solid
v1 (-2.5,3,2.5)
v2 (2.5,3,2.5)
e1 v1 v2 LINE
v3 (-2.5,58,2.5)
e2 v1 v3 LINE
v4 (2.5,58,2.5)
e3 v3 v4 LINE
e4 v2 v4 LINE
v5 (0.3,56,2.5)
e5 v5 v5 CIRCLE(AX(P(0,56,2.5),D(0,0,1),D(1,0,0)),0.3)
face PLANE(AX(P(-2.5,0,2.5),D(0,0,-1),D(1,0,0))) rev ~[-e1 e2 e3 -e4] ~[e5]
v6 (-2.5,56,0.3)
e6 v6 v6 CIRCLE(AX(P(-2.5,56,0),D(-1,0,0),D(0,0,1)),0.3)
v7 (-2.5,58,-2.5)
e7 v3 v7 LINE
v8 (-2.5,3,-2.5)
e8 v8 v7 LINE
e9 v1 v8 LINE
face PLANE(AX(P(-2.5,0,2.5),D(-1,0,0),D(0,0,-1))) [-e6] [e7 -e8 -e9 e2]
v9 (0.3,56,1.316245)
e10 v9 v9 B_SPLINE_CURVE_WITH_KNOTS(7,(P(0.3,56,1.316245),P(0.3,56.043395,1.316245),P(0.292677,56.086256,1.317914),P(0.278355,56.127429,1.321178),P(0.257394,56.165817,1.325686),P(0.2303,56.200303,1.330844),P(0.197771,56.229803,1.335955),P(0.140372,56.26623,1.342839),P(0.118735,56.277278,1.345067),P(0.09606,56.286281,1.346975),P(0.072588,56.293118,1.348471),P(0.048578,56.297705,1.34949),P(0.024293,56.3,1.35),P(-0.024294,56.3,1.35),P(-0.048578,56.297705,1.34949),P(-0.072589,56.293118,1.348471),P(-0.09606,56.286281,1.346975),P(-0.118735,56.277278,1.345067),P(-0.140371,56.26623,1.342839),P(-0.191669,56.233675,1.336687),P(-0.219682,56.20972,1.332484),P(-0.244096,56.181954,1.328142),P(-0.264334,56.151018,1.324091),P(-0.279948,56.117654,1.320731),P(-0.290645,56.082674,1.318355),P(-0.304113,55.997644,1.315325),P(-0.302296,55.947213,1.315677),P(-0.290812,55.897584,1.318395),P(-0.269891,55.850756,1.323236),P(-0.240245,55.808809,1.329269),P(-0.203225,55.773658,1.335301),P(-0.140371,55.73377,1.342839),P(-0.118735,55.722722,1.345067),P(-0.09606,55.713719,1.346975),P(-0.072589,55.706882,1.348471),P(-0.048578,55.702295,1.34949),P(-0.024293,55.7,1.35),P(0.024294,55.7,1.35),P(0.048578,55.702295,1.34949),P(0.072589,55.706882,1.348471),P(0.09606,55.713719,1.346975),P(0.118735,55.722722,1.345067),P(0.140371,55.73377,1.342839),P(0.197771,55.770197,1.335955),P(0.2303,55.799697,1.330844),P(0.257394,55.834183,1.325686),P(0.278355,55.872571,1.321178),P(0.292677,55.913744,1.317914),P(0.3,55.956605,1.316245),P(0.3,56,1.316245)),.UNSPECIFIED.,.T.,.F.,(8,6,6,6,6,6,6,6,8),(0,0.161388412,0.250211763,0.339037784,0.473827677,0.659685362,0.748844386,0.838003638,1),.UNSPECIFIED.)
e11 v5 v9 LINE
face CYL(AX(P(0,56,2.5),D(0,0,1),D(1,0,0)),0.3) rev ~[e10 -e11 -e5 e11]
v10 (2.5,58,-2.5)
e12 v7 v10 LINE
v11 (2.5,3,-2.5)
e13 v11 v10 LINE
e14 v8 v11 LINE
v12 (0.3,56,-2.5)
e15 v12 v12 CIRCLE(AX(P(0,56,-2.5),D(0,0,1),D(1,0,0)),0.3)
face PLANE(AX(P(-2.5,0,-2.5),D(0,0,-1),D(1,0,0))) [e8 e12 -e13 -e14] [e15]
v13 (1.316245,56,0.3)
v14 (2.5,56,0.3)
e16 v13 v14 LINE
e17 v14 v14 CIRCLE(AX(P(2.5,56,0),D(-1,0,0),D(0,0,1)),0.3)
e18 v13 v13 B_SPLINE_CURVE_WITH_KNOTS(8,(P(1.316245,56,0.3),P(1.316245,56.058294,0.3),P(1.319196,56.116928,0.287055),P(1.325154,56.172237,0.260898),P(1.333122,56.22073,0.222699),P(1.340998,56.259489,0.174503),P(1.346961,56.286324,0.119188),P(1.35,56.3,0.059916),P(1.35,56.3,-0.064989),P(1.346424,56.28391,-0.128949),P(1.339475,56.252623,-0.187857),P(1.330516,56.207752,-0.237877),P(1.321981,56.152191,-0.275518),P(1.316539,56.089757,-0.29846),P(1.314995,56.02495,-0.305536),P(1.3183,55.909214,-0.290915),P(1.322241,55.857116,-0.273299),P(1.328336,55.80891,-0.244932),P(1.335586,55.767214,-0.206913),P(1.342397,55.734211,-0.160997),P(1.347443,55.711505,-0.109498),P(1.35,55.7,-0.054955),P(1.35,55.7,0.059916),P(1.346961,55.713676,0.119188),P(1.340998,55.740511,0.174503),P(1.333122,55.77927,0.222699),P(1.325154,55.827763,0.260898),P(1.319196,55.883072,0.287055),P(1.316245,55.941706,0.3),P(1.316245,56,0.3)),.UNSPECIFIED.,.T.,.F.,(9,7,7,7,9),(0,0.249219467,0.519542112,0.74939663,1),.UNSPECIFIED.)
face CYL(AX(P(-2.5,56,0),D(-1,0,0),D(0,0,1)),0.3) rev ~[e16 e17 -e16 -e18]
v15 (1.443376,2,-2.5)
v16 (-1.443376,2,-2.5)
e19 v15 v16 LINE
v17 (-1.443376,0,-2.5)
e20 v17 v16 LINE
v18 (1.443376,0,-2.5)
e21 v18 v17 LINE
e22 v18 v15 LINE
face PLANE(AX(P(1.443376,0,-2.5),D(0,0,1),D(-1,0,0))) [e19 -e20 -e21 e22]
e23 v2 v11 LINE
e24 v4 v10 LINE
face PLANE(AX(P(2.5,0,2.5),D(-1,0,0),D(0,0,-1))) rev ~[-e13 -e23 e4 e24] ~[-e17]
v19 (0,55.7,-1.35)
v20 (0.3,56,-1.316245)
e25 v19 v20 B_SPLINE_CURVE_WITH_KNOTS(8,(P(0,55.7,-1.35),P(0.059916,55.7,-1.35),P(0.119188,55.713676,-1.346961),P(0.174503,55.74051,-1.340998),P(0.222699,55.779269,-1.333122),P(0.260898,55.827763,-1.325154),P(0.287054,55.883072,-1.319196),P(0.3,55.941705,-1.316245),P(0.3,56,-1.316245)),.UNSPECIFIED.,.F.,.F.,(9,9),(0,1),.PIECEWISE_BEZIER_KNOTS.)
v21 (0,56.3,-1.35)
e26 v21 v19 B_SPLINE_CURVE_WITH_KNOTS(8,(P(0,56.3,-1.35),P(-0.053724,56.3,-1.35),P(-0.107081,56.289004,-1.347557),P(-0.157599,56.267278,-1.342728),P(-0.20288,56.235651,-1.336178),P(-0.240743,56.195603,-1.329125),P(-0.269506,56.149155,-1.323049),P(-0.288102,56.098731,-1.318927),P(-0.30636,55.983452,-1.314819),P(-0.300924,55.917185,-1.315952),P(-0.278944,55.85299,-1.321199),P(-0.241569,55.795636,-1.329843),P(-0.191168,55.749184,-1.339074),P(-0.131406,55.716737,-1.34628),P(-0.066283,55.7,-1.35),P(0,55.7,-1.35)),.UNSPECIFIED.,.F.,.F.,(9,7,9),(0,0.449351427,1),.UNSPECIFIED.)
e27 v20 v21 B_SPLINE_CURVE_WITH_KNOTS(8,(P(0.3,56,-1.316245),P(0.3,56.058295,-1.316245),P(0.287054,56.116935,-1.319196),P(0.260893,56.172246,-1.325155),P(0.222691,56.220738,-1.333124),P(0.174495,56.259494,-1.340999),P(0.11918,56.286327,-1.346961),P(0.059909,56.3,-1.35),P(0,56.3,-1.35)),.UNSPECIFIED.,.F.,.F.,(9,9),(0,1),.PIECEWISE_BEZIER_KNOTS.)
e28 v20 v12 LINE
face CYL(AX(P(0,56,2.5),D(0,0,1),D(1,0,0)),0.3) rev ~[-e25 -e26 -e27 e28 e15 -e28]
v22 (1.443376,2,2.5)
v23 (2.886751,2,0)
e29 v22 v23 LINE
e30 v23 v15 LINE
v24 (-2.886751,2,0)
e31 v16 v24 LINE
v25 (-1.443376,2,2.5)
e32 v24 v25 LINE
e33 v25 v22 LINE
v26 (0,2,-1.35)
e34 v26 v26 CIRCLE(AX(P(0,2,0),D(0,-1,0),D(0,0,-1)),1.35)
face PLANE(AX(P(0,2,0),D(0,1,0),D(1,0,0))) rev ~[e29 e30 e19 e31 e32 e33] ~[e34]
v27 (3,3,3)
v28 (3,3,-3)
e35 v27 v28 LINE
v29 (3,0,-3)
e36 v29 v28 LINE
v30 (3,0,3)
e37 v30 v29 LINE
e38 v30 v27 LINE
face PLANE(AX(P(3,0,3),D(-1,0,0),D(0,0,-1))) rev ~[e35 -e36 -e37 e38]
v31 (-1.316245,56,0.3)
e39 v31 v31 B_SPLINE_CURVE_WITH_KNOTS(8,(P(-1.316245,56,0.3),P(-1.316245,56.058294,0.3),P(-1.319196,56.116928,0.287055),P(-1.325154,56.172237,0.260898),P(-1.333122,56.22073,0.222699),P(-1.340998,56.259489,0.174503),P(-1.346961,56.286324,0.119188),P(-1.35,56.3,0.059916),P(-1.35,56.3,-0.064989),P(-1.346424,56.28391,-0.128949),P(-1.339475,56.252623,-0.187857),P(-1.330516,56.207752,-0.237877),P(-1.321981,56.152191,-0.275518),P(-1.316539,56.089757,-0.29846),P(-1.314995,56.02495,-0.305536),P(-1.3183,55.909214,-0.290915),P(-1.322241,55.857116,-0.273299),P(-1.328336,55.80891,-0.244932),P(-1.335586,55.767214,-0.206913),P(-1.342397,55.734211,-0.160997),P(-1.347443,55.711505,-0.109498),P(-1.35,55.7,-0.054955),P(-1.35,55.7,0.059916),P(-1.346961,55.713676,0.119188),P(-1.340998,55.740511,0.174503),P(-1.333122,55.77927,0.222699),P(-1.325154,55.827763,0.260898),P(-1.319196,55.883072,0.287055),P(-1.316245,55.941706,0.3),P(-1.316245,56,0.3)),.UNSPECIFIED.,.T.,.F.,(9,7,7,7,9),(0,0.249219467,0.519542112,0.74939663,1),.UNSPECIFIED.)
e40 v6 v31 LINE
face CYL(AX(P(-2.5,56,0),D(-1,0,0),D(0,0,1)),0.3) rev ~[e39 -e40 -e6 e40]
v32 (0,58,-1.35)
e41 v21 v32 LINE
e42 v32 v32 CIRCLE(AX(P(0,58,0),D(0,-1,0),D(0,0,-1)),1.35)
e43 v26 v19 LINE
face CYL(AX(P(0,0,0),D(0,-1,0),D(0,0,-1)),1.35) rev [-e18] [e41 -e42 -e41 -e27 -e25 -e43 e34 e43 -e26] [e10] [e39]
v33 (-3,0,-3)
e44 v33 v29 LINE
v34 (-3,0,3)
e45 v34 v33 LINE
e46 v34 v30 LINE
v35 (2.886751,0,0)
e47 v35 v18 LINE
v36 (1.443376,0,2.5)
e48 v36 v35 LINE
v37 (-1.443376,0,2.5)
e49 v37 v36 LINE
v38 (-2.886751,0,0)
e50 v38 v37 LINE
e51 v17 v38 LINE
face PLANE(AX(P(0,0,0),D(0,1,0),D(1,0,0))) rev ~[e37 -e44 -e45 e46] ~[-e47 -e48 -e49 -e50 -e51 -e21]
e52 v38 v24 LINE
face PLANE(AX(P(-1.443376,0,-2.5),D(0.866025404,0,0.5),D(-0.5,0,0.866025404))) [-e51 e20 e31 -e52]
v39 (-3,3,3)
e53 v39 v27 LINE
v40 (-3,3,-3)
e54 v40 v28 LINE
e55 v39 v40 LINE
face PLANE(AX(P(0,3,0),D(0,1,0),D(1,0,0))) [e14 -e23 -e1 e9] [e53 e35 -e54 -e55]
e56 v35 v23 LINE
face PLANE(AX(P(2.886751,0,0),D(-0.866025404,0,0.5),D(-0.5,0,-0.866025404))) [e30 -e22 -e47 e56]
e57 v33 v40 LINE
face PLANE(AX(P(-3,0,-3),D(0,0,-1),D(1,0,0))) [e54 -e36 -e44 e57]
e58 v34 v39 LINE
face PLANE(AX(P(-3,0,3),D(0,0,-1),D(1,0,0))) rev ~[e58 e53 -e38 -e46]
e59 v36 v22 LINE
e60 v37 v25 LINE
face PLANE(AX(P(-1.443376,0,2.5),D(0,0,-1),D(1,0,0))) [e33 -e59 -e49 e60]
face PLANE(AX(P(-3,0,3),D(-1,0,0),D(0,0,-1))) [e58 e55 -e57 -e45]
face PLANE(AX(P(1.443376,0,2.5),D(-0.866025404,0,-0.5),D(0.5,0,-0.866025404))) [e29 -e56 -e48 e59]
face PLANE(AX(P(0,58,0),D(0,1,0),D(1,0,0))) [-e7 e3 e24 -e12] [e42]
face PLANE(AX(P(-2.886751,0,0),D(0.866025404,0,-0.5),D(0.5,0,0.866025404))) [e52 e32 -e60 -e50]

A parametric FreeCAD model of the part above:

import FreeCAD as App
import Part
import Sketcher
from FreeCAD import Vector
Q = App.Units.Quantity

doc = App.newDocument("Part")
body = doc.addObject("PartDesign::Body", "Body")

# Sketch on XZ plane
sketch1 = body.newObject("Sketcher::SketchObject", "Sketch")
sketch1.AttachmentSupport = (doc.getObject("XZ_Plane"), [""])
sketch1.MapMode = "FlatFace"
sketch1.addGeometry([
    Part.LineSegment(Vector(-2, -2, 0), Vector(-2, 2, 0)),
    Part.LineSegment(Vector(-2, 2, 0), Vector(2, 2, 0)),
    Part.LineSegment(Vector(2, 2, 0), Vector(2, -2, 0)),
    Part.LineSegment(Vector(2, -2, 0), Vector(-2, -2, 0)),
], False)
sketch1.addConstraint([
    Sketcher.Constraint("Coincident", 0, 2, 1, 1),
    Sketcher.Constraint("Coincident", 1, 2, 2, 1),
    Sketcher.Constraint("Coincident", 2, 2, 3, 1),
    Sketcher.Constraint("Coincident", 3, 2, 0, 1),
    Sketcher.Constraint("Vertical", 0),
    Sketcher.Constraint("Horizontal", 1),
    Sketcher.Constraint("Vertical", 2),
    Sketcher.Constraint("Horizontal", 3),
    Sketcher.Constraint("Symmetric", 0, 2, 2, 2, -1, 1),
    Sketcher.Constraint("Equal", 3, 0),
    Sketcher.Constraint("DistanceX", 1, 1, 1, 2, Q("5 mm")),
])
pad1 = body.newObject("PartDesign::Pad", "Pad")
pad1.Profile = sketch1
pad1.Length = 58
pad1.Reversed = True

# Sketch on XZ plane
sketch2 = body.newObject("Sketcher::SketchObject", "Sketch001")
sketch2.AttachmentSupport = (doc.getObject("XZ_Plane"), [""])
sketch2.MapMode = "FlatFace"
sketch2.addGeometry([
    Part.LineSegment(Vector(-3, -3, 0), Vector(-3, 3, 0)),
    Part.LineSegment(Vector(-3, 3, 0), Vector(3, 3, 0)),
    Part.LineSegment(Vector(3, 3, 0), Vector(3, -3, 0)),
    Part.LineSegment(Vector(3, -3, 0), Vector(-3, -3, 0)),
], False)
sketch2.addConstraint([
    Sketcher.Constraint("Coincident", 0, 2, 1, 1),
    Sketcher.Constraint("Coincident", 1, 2, 2, 1),
    Sketcher.Constraint("Coincident", 2, 2, 3, 1),
    Sketcher.Constraint("Coincident", 3, 2, 0, 1),
    Sketcher.Constraint("Vertical", 0),
    Sketcher.Constraint("Horizontal", 1),
    Sketcher.Constraint("Vertical", 2),
    Sketcher.Constraint("Horizontal", 3),
    Sketcher.Constraint("Symmetric", 0, 2, 2, 2, -1, 1),
    Sketcher.Constraint("Equal", 3, 0),
    Sketcher.Constraint("DistanceX", 1, 1, 1, 2, Q("6 mm")),
])
pad2 = body.newObject("PartDesign::Pad", "Pad001")
pad2.Profile = sketch2
pad2.Length = 3
pad2.Reversed = True

# Sketch on XZ plane
sketch3 = body.newObject("Sketcher::SketchObject", "Sketch002")
sketch3.AttachmentSupport = (doc.getObject("XZ_Plane"), [""])
sketch3.MapMode = "FlatFace"
sketch3.addGeometry(Part.Circle(Vector(0, 0, 0), Vector(0, 0, 1), 1.4), False)
sketch3.addConstraint([
    Sketcher.Constraint("Coincident", 0, 3, -1, 1),
    Sketcher.Constraint("Diameter", 0, Q("2.7 mm")),
])
pocket1 = body.newObject("PartDesign::Pocket", "Pocket")
pocket1.Profile = sketch3
pocket1.Type = "ThroughAll"

# Sketch on XZ plane
sketch4 = body.newObject("Sketcher::SketchObject", "Sketch003")
sketch4.AttachmentSupport = (doc.getObject("XZ_Plane"), [""])
sketch4.MapMode = "FlatFace"
sketch4.addGeometry([
    Part.LineSegment(Vector(2.9, 0, 0), Vector(1.4, -2.5, 0)),  # 0
    Part.LineSegment(Vector(1.4, -2.5, 0), Vector(-1.4, -2.5, 0)),  # 1
    Part.LineSegment(Vector(-1.4, -2.5, 0), Vector(-2.9, 0, 0)),  # 2
    Part.LineSegment(Vector(-2.9, 0, 0), Vector(-1.4, 2.5, 0)),  # 3
    Part.LineSegment(Vector(-1.4, 2.5, 0), Vector(1.4, 2.5, 0)),  # 4
    Part.LineSegment(Vector(1.4, 2.5, 0), Vector(2.9, 0, 0)),  # 5
], False)
sketch4.addConstraint([
    Sketcher.Constraint("Coincident", 0, 2, 1, 1),
    Sketcher.Constraint("Coincident", 1, 2, 2, 1),
    Sketcher.Constraint("Coincident", 2, 2, 3, 1),
    Sketcher.Constraint("Coincident", 3, 2, 4, 1),
    Sketcher.Constraint("Coincident", 4, 2, 5, 1),
    Sketcher.Constraint("Coincident", 5, 2, 0, 1),
    Sketcher.Constraint("Horizontal", 1),
    Sketcher.Constraint("Horizontal", 4),
    Sketcher.Constraint("Symmetric", 0, 2, 3, 2, -1, 1),
    Sketcher.Constraint("Symmetric", 2, 2, 5, 2, -1, 1),
    Sketcher.Constraint("PointOnObject", 2, 2, -1),
    Sketcher.Constraint("Parallel", 2, 5),
    Sketcher.Constraint("Vertical", 1, 2, 3, 2),
    Sketcher.Constraint("Angle", 0, Q("-120 deg")),
    Sketcher.Constraint("DistanceY", 1, 2, 3, 2, Q("5 mm")),
    Sketcher.Constraint("DistanceX", 1, 2, 1, 1, Q("2.886751 mm")),
])
pocket2 = body.newObject("PartDesign::Pocket", "Pocket001")
pocket2.Profile = sketch4
pocket2.Length = 2

# Sketch on XY plane
sketch5 = body.newObject("Sketcher::SketchObject", "Sketch004")
sketch5.AttachmentSupport = (doc.getObject("XY_Plane"), [""])
sketch5.MapMode = "FlatFace"
sketch5.AttachmentOffset = App.Placement(Vector(0, 0, 2.5), App.Rotation())
sketch5.addGeometry(Part.Circle(Vector(0, 56, 0), Vector(0, 0, 1), 0.3), False)
sketch5.addConstraint([
    Sketcher.Constraint("PointOnObject", 0, 3, -2),
    Sketcher.Constraint("Diameter", 0, Q("0.6 mm")),
    Sketcher.Constraint("DistanceY", -1, 1, 0, 3, Q("56 mm")),
])
pocket3 = body.newObject("PartDesign::Pocket", "Pocket002")
pocket3.Profile = sketch5
pocket3.Type = "ThroughAll"

# Sketch on YZ plane
sketch6 = body.newObject("Sketcher::SketchObject", "Sketch005")
sketch6.AttachmentSupport = (doc.getObject("YZ_Plane"), [""])
sketch6.MapMode = "FlatFace"
sketch6.AttachmentOffset = App.Placement(Vector(0, 0, -2.5), App.Rotation())
sketch6.addGeometry(Part.Circle(Vector(56, 0, 0), Vector(0, 0, 1), 0.3), False)
sketch6.addConstraint([
    Sketcher.Constraint("PointOnObject", 0, 3, -1),
    Sketcher.Constraint("Diameter", 0, Q("0.6 mm")),
    Sketcher.Constraint("DistanceX", -1, 1, 0, 3, Q("56 mm")),
])
pocket4 = body.newObject("PartDesign::Pocket", "Pocket003")
pocket4.Profile = sketch6
pocket4.Type = "ThroughAll"
pocket4.Reversed = True

doc.recompute()
